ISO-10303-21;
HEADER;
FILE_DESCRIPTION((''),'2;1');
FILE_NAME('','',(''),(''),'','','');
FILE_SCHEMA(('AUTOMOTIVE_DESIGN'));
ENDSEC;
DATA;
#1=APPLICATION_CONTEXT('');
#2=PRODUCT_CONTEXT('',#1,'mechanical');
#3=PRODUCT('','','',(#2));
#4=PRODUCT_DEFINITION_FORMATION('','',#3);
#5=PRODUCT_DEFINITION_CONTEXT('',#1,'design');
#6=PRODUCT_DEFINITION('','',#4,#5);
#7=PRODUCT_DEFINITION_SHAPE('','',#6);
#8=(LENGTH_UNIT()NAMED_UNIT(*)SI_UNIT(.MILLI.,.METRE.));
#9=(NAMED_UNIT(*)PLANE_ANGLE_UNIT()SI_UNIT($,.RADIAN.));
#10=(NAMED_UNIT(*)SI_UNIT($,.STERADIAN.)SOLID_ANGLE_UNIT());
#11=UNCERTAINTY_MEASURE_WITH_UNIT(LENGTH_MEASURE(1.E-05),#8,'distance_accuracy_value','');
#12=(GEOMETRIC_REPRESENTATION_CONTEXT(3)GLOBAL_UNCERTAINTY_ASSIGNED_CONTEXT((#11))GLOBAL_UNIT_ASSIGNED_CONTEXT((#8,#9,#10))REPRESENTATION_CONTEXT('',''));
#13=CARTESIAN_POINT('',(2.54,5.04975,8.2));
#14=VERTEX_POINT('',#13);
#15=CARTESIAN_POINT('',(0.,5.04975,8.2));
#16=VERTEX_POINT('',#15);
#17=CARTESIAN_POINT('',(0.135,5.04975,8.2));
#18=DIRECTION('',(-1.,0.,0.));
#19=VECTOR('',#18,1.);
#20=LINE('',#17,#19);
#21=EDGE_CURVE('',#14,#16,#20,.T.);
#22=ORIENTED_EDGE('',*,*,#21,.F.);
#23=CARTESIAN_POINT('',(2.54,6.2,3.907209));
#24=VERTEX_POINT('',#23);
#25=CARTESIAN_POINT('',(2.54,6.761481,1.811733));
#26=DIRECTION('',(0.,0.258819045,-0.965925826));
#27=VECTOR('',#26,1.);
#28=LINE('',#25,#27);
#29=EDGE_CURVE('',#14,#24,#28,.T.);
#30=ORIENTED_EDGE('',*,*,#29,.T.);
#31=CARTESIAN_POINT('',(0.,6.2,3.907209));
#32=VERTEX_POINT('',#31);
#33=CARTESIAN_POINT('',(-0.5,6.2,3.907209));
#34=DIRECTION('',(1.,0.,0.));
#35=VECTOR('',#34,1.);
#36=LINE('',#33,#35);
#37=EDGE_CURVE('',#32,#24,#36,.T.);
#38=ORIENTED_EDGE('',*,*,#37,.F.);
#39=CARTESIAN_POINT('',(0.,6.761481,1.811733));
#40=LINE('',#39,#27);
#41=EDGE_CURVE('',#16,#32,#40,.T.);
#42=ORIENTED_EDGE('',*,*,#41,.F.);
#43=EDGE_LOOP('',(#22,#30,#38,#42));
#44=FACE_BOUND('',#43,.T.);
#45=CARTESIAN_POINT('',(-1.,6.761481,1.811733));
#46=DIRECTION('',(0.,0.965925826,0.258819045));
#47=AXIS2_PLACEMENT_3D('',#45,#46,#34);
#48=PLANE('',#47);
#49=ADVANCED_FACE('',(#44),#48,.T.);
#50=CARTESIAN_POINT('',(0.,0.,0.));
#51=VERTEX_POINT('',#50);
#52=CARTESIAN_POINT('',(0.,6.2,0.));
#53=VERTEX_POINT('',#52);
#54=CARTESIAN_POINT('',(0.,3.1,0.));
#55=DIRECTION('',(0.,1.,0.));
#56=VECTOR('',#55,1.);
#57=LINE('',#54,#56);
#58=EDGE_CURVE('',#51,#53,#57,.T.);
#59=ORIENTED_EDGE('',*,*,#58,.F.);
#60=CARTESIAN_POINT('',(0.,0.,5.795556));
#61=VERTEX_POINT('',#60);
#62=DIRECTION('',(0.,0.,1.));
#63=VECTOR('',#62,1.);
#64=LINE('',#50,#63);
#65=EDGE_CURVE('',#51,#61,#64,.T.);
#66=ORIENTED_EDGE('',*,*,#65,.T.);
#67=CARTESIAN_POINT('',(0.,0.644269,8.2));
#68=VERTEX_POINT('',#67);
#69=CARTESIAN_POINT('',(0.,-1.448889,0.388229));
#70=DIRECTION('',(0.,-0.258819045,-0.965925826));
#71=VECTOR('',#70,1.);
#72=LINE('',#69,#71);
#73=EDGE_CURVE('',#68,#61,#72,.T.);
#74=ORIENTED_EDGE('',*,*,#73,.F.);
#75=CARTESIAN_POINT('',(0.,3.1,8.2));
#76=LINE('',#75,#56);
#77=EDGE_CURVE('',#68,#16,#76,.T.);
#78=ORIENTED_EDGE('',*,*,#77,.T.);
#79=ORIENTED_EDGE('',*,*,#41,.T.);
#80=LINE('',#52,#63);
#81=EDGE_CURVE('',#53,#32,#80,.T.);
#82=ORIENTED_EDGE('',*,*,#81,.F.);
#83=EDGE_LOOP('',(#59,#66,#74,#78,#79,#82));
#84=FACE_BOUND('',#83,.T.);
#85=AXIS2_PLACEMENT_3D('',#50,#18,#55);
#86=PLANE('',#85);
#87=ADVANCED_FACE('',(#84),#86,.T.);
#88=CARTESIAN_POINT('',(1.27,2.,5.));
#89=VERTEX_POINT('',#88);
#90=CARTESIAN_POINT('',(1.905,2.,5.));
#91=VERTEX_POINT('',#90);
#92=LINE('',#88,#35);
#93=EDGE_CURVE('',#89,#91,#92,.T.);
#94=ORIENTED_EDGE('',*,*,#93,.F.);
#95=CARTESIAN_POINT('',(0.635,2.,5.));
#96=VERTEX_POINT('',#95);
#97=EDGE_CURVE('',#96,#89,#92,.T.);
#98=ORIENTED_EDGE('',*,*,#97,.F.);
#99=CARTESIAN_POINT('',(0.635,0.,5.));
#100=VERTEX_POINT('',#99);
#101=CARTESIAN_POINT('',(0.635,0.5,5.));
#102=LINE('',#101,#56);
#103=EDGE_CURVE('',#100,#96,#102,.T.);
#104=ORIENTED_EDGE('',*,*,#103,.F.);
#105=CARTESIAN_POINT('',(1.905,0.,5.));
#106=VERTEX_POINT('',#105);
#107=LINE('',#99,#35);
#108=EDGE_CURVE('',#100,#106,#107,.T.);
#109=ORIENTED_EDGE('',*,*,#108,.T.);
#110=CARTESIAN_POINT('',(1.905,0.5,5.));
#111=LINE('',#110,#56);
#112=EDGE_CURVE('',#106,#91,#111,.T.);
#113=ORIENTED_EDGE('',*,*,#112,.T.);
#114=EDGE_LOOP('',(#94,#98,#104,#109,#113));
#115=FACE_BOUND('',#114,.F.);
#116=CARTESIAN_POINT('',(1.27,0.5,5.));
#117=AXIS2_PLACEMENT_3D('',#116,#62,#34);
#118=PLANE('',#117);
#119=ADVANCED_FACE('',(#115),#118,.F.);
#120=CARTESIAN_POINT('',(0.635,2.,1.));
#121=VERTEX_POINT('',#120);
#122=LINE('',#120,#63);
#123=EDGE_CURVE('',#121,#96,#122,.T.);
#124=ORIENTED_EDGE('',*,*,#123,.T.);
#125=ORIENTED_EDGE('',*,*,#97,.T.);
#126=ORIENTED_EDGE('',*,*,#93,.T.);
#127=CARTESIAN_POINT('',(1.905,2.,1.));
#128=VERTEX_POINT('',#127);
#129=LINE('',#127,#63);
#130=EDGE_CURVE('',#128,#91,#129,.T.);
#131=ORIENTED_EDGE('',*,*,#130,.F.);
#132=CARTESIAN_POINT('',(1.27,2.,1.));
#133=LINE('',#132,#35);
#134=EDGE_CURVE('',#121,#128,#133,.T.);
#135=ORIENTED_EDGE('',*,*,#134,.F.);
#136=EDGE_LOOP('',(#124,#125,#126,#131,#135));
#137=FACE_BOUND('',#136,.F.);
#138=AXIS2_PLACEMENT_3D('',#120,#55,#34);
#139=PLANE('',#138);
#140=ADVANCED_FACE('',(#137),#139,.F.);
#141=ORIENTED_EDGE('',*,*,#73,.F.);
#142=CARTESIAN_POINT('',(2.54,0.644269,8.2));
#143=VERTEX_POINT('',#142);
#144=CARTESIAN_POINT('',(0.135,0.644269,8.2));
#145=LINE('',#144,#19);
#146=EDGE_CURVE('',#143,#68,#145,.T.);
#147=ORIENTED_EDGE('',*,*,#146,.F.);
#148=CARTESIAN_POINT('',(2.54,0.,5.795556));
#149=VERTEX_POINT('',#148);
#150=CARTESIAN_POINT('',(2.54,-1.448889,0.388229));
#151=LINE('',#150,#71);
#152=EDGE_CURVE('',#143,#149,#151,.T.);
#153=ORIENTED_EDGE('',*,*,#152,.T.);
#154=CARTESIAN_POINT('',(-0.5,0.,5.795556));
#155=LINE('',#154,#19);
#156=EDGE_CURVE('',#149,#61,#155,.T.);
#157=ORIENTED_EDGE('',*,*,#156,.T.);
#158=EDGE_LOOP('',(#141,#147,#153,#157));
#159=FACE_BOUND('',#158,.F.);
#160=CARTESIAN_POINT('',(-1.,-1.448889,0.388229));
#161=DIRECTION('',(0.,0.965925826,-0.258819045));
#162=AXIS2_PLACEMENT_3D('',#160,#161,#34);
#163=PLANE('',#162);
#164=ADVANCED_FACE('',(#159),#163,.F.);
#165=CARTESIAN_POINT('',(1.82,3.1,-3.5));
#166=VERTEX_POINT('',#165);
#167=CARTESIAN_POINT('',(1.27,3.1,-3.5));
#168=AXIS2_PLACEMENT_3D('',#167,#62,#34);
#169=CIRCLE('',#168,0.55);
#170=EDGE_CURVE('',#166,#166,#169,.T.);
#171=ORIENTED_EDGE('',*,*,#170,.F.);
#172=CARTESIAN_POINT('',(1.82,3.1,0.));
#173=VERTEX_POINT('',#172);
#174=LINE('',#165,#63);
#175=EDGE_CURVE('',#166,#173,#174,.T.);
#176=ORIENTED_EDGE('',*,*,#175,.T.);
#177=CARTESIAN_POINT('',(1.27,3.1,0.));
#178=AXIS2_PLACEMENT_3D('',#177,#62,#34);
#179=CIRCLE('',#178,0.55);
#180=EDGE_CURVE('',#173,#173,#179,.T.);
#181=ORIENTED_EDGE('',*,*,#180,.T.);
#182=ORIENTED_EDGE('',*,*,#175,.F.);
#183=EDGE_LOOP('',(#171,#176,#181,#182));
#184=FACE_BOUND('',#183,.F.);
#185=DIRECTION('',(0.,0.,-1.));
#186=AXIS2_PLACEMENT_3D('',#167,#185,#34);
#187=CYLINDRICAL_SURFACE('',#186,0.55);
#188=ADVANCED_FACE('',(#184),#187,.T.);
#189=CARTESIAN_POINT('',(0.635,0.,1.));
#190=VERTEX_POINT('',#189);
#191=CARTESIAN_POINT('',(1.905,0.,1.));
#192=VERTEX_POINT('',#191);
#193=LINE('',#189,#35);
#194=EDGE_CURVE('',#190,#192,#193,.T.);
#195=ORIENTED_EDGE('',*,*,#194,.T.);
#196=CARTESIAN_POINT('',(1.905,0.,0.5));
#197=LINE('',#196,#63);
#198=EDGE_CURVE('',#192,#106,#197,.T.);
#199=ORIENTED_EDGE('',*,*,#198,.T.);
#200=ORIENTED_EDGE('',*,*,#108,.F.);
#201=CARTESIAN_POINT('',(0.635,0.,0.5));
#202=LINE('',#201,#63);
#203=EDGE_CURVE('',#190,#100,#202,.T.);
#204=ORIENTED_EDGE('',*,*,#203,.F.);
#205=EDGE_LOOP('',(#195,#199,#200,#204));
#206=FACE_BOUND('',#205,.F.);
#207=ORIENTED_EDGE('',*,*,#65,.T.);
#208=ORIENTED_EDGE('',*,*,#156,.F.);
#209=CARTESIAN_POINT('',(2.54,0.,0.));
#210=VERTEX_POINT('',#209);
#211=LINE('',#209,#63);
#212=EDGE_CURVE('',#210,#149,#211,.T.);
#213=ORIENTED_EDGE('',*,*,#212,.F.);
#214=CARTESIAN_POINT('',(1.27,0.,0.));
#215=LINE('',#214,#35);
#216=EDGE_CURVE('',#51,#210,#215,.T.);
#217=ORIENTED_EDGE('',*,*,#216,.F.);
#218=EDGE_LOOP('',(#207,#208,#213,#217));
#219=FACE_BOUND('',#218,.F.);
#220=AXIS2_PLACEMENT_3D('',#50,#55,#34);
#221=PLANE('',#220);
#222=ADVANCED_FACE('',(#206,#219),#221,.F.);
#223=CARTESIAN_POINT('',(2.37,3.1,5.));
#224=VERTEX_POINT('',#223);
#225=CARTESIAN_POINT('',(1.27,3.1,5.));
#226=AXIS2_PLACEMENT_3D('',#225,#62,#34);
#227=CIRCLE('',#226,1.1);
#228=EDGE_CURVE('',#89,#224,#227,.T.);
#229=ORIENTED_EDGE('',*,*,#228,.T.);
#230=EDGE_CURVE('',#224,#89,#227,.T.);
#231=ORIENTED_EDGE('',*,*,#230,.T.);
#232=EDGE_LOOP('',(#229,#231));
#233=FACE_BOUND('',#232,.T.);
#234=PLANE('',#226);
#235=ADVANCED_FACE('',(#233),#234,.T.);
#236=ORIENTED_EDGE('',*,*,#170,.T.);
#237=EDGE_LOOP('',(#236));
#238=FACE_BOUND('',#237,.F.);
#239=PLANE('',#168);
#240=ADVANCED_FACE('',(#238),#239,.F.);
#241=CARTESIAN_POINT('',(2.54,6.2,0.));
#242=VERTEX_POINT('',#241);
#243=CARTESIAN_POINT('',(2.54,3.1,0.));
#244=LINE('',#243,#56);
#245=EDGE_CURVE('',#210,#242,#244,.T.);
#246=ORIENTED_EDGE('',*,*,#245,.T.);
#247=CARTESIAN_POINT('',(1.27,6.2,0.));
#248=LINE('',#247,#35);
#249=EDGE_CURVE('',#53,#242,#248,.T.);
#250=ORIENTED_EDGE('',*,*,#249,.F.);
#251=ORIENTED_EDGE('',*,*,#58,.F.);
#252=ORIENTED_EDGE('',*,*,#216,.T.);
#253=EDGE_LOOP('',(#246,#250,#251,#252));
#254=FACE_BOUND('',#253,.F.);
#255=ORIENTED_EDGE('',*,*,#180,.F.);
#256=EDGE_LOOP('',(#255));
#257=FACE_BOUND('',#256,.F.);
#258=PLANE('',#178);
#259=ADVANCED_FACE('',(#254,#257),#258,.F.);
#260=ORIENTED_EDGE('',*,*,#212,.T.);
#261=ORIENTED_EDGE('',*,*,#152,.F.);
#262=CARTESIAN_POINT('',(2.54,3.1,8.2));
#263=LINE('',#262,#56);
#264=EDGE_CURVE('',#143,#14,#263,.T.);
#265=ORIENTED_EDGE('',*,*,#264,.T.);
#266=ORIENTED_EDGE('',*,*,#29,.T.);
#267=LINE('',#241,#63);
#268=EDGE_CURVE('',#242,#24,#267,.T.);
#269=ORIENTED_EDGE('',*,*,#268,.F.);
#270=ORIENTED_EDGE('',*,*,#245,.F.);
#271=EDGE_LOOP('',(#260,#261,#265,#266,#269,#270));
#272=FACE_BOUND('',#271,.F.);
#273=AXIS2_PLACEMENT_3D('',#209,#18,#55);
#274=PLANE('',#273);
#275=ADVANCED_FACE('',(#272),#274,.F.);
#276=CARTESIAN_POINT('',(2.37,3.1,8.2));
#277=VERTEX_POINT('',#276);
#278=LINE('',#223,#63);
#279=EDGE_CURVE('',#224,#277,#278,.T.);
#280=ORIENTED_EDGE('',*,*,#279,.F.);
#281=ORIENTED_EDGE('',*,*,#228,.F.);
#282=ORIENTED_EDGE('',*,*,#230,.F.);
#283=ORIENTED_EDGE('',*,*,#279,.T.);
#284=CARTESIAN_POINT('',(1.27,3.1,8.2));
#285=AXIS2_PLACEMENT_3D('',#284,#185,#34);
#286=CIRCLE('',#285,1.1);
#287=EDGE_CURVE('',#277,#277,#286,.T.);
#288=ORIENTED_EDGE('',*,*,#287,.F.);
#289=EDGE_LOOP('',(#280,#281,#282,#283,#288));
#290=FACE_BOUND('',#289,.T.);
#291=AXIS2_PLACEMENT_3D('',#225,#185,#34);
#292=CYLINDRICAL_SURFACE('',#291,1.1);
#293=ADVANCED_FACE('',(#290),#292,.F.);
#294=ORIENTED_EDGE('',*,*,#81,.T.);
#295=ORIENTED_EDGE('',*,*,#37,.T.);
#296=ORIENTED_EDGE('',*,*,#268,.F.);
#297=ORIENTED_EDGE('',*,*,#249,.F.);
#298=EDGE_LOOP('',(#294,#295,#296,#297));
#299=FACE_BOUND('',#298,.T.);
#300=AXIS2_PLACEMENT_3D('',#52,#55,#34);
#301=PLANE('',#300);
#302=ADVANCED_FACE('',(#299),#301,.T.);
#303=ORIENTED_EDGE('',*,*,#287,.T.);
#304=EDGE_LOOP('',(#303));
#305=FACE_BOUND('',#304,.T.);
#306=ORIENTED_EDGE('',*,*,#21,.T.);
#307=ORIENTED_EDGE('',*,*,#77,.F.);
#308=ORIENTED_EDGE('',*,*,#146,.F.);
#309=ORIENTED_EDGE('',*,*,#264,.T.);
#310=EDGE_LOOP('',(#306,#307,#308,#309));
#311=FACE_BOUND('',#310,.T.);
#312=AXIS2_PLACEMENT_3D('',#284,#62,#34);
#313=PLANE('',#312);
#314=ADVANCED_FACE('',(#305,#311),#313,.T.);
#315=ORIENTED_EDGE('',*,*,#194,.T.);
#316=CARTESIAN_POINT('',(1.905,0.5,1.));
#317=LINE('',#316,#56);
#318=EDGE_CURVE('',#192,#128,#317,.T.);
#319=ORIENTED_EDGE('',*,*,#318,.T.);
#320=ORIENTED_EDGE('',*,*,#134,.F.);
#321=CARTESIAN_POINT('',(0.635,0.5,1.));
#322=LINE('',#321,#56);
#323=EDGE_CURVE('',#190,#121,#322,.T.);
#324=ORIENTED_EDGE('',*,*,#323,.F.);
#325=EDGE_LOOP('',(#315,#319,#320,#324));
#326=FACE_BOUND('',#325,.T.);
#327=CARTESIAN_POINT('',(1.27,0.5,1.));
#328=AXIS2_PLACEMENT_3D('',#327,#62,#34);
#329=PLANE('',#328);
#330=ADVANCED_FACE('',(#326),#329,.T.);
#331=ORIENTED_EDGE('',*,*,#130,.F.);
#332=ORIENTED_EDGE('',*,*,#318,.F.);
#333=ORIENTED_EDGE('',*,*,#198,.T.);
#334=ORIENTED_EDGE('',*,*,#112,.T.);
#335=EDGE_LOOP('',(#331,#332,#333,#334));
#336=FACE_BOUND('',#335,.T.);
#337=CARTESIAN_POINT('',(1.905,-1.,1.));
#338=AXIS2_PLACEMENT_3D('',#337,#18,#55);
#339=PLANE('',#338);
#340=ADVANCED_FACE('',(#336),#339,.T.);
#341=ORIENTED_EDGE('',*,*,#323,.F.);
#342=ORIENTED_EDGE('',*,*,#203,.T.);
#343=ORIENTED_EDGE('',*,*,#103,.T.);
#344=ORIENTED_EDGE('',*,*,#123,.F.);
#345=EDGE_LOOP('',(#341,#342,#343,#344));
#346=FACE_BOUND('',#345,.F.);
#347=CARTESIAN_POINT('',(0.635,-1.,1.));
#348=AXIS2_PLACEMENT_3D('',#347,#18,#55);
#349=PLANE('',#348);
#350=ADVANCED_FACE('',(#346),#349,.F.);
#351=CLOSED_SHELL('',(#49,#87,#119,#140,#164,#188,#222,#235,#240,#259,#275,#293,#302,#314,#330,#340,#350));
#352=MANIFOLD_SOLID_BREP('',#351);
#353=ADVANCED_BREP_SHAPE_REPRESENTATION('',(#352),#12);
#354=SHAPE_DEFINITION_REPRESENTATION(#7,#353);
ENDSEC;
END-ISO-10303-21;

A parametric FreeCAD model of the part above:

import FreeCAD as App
import Part
import Sketcher

V = App.Vector

doc = App.newDocument("Part")
body = doc.addObject("PartDesign::Body", "Body")

# Sketch on XY plane
sketch1 = doc.addObject("Sketcher::SketchObject", "Sketch")
body.addObject(sketch1)
sketch1.AttachmentSupport = (doc.XY_Plane, [""])
sketch1.MapMode = "FlatFace"
sketch1.AttachmentOffset = App.Placement(V(0, 0, -3.5), App.Rotation())
sketch1.addGeometry(Part.Circle(V(1.3, 3.1, 0), V(0, 0, 1), 0.6), False)
sketch1.addConstraint([
    Sketcher.Constraint("Diameter", 0, 1.1),
    Sketcher.Constraint("DistanceY", -1, 1, 0, 3, 3.1),
    Sketcher.Constraint("DistanceX", -1, 1, 0, 3, 1.27),
])
pad1 = doc.addObject("PartDesign::Pad", "Pad")
body.addObject(pad1)
pad1.Profile = sketch1
pad1.Length = 3.5
body2 = doc.addObject("PartDesign::Body", "Body001")

# Sketch on XY plane
sketch2 = doc.addObject("Sketcher::SketchObject", "Sketch001")
body2.addObject(sketch2)
sketch2.AttachmentSupport = (doc.getObject("XY_Plane001"), [""])
sketch2.MapMode = "FlatFace"
sketch2.AttachmentOffset = App.Placement(V(0, 0, 5), App.Rotation())
sketch2.addGeometry(Part.Circle(V(1.3, 3.1, 0), V(0, 0, 1), 1.1), False)
sketch2.addConstraint([
    Sketcher.Constraint("Diameter", 0, 2.2),
    Sketcher.Constraint("DistanceY", -1, 1, 0, 3, 3.1),
    Sketcher.Constraint("DistanceX", -1, 1, 0, 3, 1.27),
])
pad2 = doc.addObject("PartDesign::Pad", "Pad001")
body2.addObject(pad2)
pad2.Profile = sketch2
pad2.Length = 3.5
body3 = doc.addObject("PartDesign::Body", "Body002")

# Sketch on XY plane
sketch3 = doc.addObject("Sketcher::SketchObject", "Sketch002")
body3.addObject(sketch3)
sketch3.AttachmentSupport = (doc.getObject("XY_Plane002"), [""])
sketch3.MapMode = "FlatFace"
sketch3.addGeometry([
    Part.LineSegment(V(0, 6, 0), V(0, 0, 0)),
    Part.LineSegment(V(0, 0, 0), V(4, 0, 0)),
    Part.LineSegment(V(4, 0, 0), V(4, 6, 0)),
    Part.LineSegment(V(4, 6, 0), V(0, 6, 0)),
], False)
sketch3.addConstraint([
    Sketcher.Constraint("Coincident", 0, 2, 1, 1),
    Sketcher.Constraint("Coincident", 1, 2, 2, 1),
    Sketcher.Constraint("Coincident", 2, 2, 3, 1),
    Sketcher.Constraint("Coincident", 3, 2, 0, 1),
    Sketcher.Constraint("Vertical", 0),
    Sketcher.Constraint("Horizontal", 1),
    Sketcher.Constraint("Vertical", 2),
    Sketcher.Constraint("Horizontal", 3),
    Sketcher.Constraint("Coincident", 0, 2, -1, 1),
    Sketcher.Constraint("DistanceX", 1, 1, 1, 2, 4.0),
    Sketcher.Constraint("DistanceY", 0, 2, 0, 1, 6.0),
])
pad3 = doc.addObject("PartDesign::Pad", "Pad002")
body3.addObject(pad3)
pad3.Profile = sketch3
pad3.Length = 9
body4 = doc.addObject("PartDesign::Body", "Body003")
doc.recompute()

body3.Placement = App.Placement(V(-1, -7.244444, 1.941143), App.Rotation(V(-1, 0, 0), 15))
boolean = doc.addObject("PartDesign::Boolean", "Boolean")
body4.addObject(boolean)
boolean.Type = "Fuse"
boolean.addObjects([body3])
body5 = doc.addObject("PartDesign::Body", "Body004")

# Sketch on XY plane
sketch4 = doc.addObject("Sketcher::SketchObject", "Sketch003")
body5.addObject(sketch4)
sketch4.AttachmentSupport = (doc.getObject("XY_Plane004"), [""])
sketch4.MapMode = "FlatFace"
sketch4.addGeometry([
    Part.LineSegment(V(0, 6, 0), V(0, 0, 0)),
    Part.LineSegment(V(0, 0, 0), V(4, 0, 0)),
    Part.LineSegment(V(4, 0, 0), V(4, 6, 0)),
    Part.LineSegment(V(4, 6, 0), V(0, 6, 0)),
], False)
sketch4.addConstraint([
    Sketcher.Constraint("Coincident", 0, 2, 1, 1),
    Sketcher.Constraint("Coincident", 1, 2, 2, 1),
    Sketcher.Constraint("Coincident", 2, 2, 3, 1),
    Sketcher.Constraint("Coincident", 3, 2, 0, 1),
    Sketcher.Constraint("Vertical", 0),
    Sketcher.Constraint("Horizontal", 1),
    Sketcher.Constraint("Vertical", 2),
    Sketcher.Constraint("Horizontal", 3),
    Sketcher.Constraint("Coincident", 0, 2, -1, 1),
    Sketcher.Constraint("DistanceX", 1, 1, 1, 2, 4.0),
    Sketcher.Constraint("DistanceY", 0, 2, 0, 1, 6.0),
])
pad4 = doc.addObject("PartDesign::Pad", "Pad003")
body5.addObject(pad4)
pad4.Profile = sketch4
pad4.Length = 8
body6 = doc.addObject("PartDesign::Body", "Body005")
doc.recompute()

body5.Placement = App.Placement(V(-1, 6.761481, 1.811733), App.Rotation(V(1, 0, 0), 15))
boolean2 = doc.addObject("PartDesign::Boolean", "Boolean001")
body6.addObject(boolean2)
boolean2.Type = "Fuse"
boolean2.addObjects([body5])
body7 = doc.addObject("PartDesign::Body", "Body006")

# Sketch on XY plane
sketch5 = doc.addObject("Sketcher::SketchObject", "Sketch004")
body7.addObject(sketch5)
sketch5.AttachmentSupport = (doc.getObject("XY_Plane006"), [""])
sketch5.MapMode = "FlatFace"
sketch5.AttachmentOffset = App.Placement(V(0, 0, 1), App.Rotation())
sketch5.addGeometry([
    Part.LineSegment(V(0.6, 2, 0), V(0.6, -1, 0)),
    Part.LineSegment(V(0.6, -1, 0), V(1.9, -1, 0)),
    Part.LineSegment(V(1.9, -1, 0), V(1.9, 2, 0)),
    Part.LineSegment(V(1.9, 2, 0), V(0.6, 2, 0)),
], False)
sketch5.addConstraint([
    Sketcher.Constraint("Coincident", 0, 2, 1, 1),
    Sketcher.Constraint("Coincident", 1, 2, 2, 1),
    Sketcher.Constraint("Coincident", 2, 2, 3, 1),
    Sketcher.Constraint("Coincident", 3, 2, 0, 1),
    Sketcher.Constraint("Vertical", 0),
    Sketcher.Constraint("Horizontal", 1),
    Sketcher.Constraint("Vertical", 2),
    Sketcher.Constraint("Horizontal", 3),
    Sketcher.Constraint("DistanceY", 0, 2, 0, 1, 3.0),
    Sketcher.Constraint("DistanceY", 0, 2, -1, 1, 1.0),
    Sketcher.Constraint("DistanceX", 1, 1, 1, 2, 1.27),
    Sketcher.Constraint("DistanceX", -1, 1, 0, 2, 0.635),
])
pad5 = doc.addObject("PartDesign::Pad", "Pad004")
body7.addObject(pad5)
pad5.Profile = sketch5
pad5.Length = 4
body8 = doc.addObject("PartDesign::Body", "Body007")

# Sketch on XY plane
sketch6 = doc.addObject("Sketcher::SketchObject", "Sketch005")
body8.addObject(sketch6)
sketch6.AttachmentSupport = (doc.getObject("XY_Plane007"), [""])
sketch6.MapMode = "FlatFace"
sketch6.addGeometry([
    Part.LineSegment(V(0, 6.2, 0), V(0, 0, 0)),
    Part.LineSegment(V(0, 0, 0), V(2.5, 0, 0)),
    Part.LineSegment(V(2.5, 0, 0), V(2.5, 6.2, 0)),
    Part.LineSegment(V(2.5, 6.2, 0), V(0, 6.2, 0)),
], False)
sketch6.addConstraint([
    Sketcher.Constraint("Coincident", 0, 2, 1, 1),
    Sketcher.Constraint("Coincident", 1, 2, 2, 1),
    Sketcher.Constraint("Coincident", 2, 2, 3, 1),
    Sketcher.Constraint("Coincident", 3, 2, 0, 1),
    Sketcher.Constraint("Vertical", 0),
    Sketcher.Constraint("Horizontal", 1),
    Sketcher.Constraint("Vertical", 2),
    Sketcher.Constraint("Horizontal", 3),
    Sketcher.Constraint("Coincident", 0, 2, -1, 1),
    Sketcher.Constraint("DistanceY", 0, 2, 0, 1, 6.2),
    Sketcher.Constraint("DistanceX", 1, 1, 1, 2, 2.54),
])
pad6 = doc.addObject("PartDesign::Pad", "Pad005")
body8.addObject(pad6)
pad6.Profile = sketch6
pad6.Length = 8.2
doc.recompute()

boolean3 = doc.addObject("PartDesign::Boolean", "Boolean002")
body8.addObject(boolean3)
boolean3.Type = "Cut"
boolean3.addObjects([body7])
doc.recompute()

boolean4 = doc.addObject("PartDesign::Boolean", "Boolean003")
body8.addObject(boolean4)
boolean4.Type = "Cut"
boolean4.addObjects([body6])
doc.recompute()

boolean5 = doc.addObject("PartDesign::Boolean", "Boolean004")
body8.addObject(boolean5)
boolean5.Type = "Cut"
boolean5.addObjects([body4])
doc.recompute()

boolean6 = doc.addObject("PartDesign::Boolean", "Boolean005")
body8.addObject(boolean6)
boolean6.Type = "Cut"
boolean6.addObjects([body2])
doc.recompute()

boolean7 = doc.addObject("PartDesign::Boolean", "Boolean006")
body8.addObject(boolean7)
boolean7.Type = "Fuse"
boolean7.addObjects([body])

doc.recompute()
